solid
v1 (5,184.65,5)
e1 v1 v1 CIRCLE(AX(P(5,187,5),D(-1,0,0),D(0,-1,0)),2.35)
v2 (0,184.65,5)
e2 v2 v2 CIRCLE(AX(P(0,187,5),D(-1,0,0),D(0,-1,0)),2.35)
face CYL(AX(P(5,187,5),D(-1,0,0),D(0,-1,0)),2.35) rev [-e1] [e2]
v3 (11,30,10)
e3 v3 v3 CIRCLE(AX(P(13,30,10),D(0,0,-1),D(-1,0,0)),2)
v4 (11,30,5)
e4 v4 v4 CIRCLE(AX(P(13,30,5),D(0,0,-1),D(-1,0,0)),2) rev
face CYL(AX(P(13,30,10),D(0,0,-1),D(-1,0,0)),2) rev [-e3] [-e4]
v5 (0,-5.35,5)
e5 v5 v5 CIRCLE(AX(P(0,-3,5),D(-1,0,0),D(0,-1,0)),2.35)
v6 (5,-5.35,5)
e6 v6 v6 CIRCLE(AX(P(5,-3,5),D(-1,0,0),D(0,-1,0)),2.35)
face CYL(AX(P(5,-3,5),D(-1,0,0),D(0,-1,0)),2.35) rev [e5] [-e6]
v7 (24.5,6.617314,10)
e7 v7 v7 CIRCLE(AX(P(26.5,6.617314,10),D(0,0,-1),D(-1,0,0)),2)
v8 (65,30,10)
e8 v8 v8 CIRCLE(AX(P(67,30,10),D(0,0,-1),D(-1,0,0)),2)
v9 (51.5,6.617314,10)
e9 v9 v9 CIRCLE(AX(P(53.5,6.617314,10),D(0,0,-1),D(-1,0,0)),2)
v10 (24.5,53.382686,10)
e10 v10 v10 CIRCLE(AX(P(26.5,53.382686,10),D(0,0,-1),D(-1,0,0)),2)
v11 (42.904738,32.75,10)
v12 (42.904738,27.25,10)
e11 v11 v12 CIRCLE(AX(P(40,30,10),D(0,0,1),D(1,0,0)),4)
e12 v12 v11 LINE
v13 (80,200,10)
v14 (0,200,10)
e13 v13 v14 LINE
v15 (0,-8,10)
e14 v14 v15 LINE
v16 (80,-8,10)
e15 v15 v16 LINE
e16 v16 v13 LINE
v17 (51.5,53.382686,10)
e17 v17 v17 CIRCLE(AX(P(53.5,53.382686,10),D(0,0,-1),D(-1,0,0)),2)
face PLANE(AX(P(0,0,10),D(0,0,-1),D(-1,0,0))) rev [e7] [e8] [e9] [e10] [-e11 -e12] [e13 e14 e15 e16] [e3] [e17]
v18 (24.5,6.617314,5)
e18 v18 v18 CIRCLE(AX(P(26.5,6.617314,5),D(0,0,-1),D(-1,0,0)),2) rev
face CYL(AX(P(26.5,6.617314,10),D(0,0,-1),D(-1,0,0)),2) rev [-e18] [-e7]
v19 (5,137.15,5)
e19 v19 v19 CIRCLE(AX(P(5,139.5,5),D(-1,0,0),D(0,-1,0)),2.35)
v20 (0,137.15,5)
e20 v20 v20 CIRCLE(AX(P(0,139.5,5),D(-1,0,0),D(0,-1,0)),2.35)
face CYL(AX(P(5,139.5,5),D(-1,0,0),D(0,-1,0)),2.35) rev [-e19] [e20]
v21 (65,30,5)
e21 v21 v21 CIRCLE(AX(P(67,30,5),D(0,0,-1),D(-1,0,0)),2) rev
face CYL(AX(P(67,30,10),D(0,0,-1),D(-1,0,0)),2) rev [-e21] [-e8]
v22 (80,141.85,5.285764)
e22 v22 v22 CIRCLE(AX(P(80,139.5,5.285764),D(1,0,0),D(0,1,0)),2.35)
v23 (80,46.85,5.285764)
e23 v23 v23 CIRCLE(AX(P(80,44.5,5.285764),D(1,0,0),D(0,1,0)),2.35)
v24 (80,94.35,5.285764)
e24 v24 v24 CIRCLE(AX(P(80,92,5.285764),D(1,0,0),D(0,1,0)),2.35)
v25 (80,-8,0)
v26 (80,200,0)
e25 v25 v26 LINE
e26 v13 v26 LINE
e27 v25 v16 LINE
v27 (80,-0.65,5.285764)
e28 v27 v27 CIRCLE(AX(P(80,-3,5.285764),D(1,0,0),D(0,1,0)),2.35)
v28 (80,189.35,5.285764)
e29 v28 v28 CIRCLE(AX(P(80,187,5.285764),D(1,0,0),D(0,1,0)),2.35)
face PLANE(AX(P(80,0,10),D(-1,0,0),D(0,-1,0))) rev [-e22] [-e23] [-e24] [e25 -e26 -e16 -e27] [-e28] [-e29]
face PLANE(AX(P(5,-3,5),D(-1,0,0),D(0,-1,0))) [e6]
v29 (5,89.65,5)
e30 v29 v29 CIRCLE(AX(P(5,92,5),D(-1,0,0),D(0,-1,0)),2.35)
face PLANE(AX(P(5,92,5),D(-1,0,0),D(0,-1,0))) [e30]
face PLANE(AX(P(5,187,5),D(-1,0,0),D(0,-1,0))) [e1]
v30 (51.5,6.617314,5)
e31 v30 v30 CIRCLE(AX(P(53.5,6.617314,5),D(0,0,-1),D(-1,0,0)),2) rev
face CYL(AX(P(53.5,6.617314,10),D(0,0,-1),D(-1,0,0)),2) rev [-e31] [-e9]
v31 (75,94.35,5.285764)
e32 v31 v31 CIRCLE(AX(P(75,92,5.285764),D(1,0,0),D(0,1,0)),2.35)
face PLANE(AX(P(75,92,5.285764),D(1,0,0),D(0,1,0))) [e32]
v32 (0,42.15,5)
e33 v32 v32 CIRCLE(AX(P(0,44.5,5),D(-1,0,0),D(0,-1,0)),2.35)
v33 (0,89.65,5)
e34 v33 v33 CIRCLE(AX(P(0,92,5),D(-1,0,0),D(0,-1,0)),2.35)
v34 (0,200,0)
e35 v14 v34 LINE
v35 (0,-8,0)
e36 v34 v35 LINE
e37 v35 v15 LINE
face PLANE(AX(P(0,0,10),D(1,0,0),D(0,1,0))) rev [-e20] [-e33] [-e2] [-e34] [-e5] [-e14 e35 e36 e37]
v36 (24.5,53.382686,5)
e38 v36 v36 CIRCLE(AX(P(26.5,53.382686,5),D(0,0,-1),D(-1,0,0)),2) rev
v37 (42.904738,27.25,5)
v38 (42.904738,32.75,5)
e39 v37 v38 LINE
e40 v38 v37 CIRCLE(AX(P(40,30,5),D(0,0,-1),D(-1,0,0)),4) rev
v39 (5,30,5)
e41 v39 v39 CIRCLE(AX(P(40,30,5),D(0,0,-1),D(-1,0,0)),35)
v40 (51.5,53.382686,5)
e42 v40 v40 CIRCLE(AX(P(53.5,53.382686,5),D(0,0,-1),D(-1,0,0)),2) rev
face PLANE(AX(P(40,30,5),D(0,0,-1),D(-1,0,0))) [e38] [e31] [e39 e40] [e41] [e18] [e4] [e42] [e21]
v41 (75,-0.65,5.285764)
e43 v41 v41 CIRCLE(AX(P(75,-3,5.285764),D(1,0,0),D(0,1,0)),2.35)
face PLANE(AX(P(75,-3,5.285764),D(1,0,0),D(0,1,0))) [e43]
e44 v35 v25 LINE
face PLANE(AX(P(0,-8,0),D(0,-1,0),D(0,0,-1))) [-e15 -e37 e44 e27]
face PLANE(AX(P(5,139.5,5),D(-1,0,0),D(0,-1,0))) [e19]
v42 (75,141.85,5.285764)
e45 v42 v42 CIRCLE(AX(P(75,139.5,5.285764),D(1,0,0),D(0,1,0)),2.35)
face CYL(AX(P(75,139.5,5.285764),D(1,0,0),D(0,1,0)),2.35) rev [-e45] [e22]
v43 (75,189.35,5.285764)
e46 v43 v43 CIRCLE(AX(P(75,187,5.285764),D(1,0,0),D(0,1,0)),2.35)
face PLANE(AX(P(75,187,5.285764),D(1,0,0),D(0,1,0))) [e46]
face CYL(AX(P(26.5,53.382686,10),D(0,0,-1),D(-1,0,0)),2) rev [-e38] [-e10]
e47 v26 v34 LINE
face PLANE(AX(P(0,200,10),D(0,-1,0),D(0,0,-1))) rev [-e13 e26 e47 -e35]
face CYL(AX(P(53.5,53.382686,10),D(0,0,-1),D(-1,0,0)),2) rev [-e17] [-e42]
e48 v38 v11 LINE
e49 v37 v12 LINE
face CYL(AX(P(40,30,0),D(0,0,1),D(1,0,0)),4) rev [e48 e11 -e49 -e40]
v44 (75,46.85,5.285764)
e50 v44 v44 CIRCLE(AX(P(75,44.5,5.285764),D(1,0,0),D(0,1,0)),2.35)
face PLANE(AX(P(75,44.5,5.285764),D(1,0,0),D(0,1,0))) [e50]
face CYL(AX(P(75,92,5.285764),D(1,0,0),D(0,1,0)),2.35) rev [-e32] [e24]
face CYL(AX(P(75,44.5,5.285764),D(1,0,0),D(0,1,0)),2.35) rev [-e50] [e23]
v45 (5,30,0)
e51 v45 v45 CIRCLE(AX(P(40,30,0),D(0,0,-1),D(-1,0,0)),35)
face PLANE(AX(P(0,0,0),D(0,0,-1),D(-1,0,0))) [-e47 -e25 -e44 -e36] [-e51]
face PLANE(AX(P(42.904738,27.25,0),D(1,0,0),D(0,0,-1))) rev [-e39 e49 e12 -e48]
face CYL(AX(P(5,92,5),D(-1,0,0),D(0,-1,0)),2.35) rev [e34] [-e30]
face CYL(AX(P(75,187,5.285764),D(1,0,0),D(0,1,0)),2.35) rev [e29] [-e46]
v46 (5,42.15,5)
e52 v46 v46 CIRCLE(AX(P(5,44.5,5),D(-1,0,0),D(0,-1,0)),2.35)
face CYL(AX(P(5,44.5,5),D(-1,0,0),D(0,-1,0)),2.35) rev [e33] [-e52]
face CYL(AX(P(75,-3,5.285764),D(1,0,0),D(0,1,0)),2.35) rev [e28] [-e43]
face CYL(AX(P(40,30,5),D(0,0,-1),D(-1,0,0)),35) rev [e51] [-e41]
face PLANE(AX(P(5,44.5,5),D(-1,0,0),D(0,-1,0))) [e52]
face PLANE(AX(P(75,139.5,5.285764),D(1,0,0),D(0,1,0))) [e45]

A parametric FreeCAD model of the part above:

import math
import FreeCAD as App
import Part
import Sketcher


def add_polygon(sketch, points):
    """Adds a closed chain of lines whose ends are joined by coincident constraints."""
    first, n = sketch.GeometryCount, len(points)
    for a, b in zip(points, points[1:] + points[:1]):
        sketch.addGeometry(Part.LineSegment(App.Vector(*a, 0), App.Vector(*b, 0)), False)
    for i in range(n):
        sketch.addConstraint(Sketcher.Constraint("Coincident", first + i, 2, first + (i + 1) % n, 1))

doc = App.newDocument("Part")
body = doc.addObject("PartDesign::Body", "Body")

# Sketch on XY plane
sketch1 = body.newObject("Sketcher::SketchObject", "Sketch")
sketch1.AttachmentSupport = (doc.getObject("XY_Plane"), [""])
sketch1.MapMode = "FlatFace"
add_polygon(sketch1, [(0, 200), (0, 0), (80, 0), (80, 200)])  # lines 0-3
sketch1.addConstraint([
    Sketcher.Constraint("Vertical", 0),
    Sketcher.Constraint("Horizontal", 1),
    Sketcher.Constraint("Vertical", 2),
    Sketcher.Constraint("Horizontal", 3),
    Sketcher.Constraint("Coincident", 0, 2, -1, 1),
    Sketcher.Constraint("DistanceX", 1, 1, 1, 2, 80.0),
    Sketcher.Constraint("DistanceY", 0, 2, 0, 1, 200.0),
])
pad1 = body.newObject("PartDesign::Pad", "Pad")
pad1.Profile = sketch1
pad1.Length = 10

# Sketch on XY plane
sketch2 = body.newObject("Sketcher::SketchObject", "Sketch001")
sketch2.AttachmentSupport = (doc.getObject("XY_Plane"), [""])
sketch2.MapMode = "FlatFace"
sketch2.AttachmentOffset = App.Placement(App.Vector(0, 0, 10), App.Rotation())
sketch2.addGeometry([
    Part.LineSegment(App.Vector(42.9, 27.2, 0), App.Vector(42.9, 32.8, 0)),
    Part.ArcOfCircle(Part.Circle(App.Vector(40, 30, 0), App.Vector(0, 0, 1), 4), math.radians(43), math.radians(317)),
], False)
sketch2.addConstraint([
    Sketcher.Constraint("Coincident", 0, 1, 1, 2),
    Sketcher.Constraint("Coincident", 1, 1, 0, 2),
    Sketcher.Constraint("Vertical", 0),
    Sketcher.Constraint("Radius", 1, 4.0),
    Sketcher.Constraint("DistanceY", 0, 1, 0, 2, 5.5),
    Sketcher.Constraint("DistanceX", -1, 1, 1, 3, 40.0),
    Sketcher.Constraint("DistanceY", -1, 1, 1, 3, 30.0),
])
pocket1 = body.newObject("PartDesign::Pocket", "Pocket")
pocket1.Profile = sketch2
pocket1.Length = 10

# Sketch on XY plane
sketch3 = body.newObject("Sketcher::SketchObject", "Sketch002")
sketch3.AttachmentSupport = (doc.getObject("XY_Plane"), [""])
sketch3.MapMode = "FlatFace"
sketch3.addGeometry([
    Part.Circle(App.Vector(13, 30, 0), App.Vector(0, 0, 1), 2),  # 0
    Part.Circle(App.Vector(26.5, 6.6, 0), App.Vector(0, 0, 1), 2),  # 1
    Part.Circle(App.Vector(53.5, 6.6, 0), App.Vector(0, 0, 1), 2),  # 2
    Part.Circle(App.Vector(67, 30, 0), App.Vector(0, 0, 1), 2),  # 3
    Part.Circle(App.Vector(53.5, 53.4, 0), App.Vector(0, 0, 1), 2),  # 4
    Part.Circle(App.Vector(26.5, 53.4, 0), App.Vector(0, 0, 1), 2),  # 5
], False)
sketch3.addConstraint([
    Sketcher.Constraint("Equal", 0, 1),
    Sketcher.Constraint("Equal", 1, 2),
    Sketcher.Constraint("Equal", 2, 3),
    Sketcher.Constraint("Equal", 3, 4),
    Sketcher.Constraint("Equal", 4, 5),
    Sketcher.Constraint("Horizontal", 1, 3, 2, 3),
    Sketcher.Constraint("Horizontal", 0, 3, 3, 3),
    Sketcher.Constraint("Horizontal", 4, 3, 5, 3),
    Sketcher.Constraint("Vertical", 2, 3, 4, 3),
    Sketcher.Constraint("Vertical", 1, 3, 5, 3),
    Sketcher.Constraint("Diameter", 0, 4.0),
    Sketcher.Constraint("DistanceX", -1, 1, 0, 3, 13.0),
    Sketcher.Constraint("DistanceY", -1, 1, 0, 3, 30.0),
    Sketcher.Constraint("DistanceX", -1, 1, 3, 3, 67.0),
    Sketcher.Constraint("DistanceX", 1, 3, 2, 3, 27.0),
    Sketcher.Constraint("DistanceX", -1, 1, 1, 3, 26.5),
    Sketcher.Constraint("DistanceY", 2, 3, 4, 3, 46.765372),
    Sketcher.Constraint("DistanceY", -1, 1, 1, 3, 6.617314),
])
pocket2 = body.newObject("PartDesign::Pocket", "Pocket001")
pocket2.Profile = sketch3
pocket2.Type = "ThroughAll"
pocket2.Reversed = True

# Sketch on XY plane
sketch4 = body.newObject("Sketcher::SketchObject", "Sketch003")
sketch4.AttachmentSupport = (doc.getObject("XY_Plane"), [""])
sketch4.MapMode = "FlatFace"
sketch4.addGeometry(Part.Circle(App.Vector(40, 30, 0), App.Vector(0, 0, 1), 35), False)
sketch4.addConstraint([
    Sketcher.Constraint("Diameter", 0, 70.0),
    Sketcher.Constraint("DistanceX", -1, 1, 0, 3, 40.0),
    Sketcher.Constraint("DistanceY", -1, 1, 0, 3, 30.0),
])
pocket3 = body.newObject("PartDesign::Pocket", "Pocket002")
pocket3.Profile = sketch4
pocket3.Length = 5
pocket3.Reversed = True

# Sketch on XY plane
sketch5 = body.newObject("Sketcher::SketchObject", "Sketch004")
sketch5.AttachmentSupport = (doc.getObject("XY_Plane"), [""])
sketch5.MapMode = "FlatFace"
sketch5.AttachmentOffset = App.Placement(App.Vector(0, 0, 10), App.Rotation())
add_polygon(sketch5, [(0, 0), (0, -8), (80, -8), (80, 0)])  # lines 0-3
sketch5.addConstraint([
    Sketcher.Constraint("Vertical", 0),
    Sketcher.Constraint("Horizontal", 1),
    Sketcher.Constraint("Vertical", 2),
    Sketcher.Constraint("Horizontal", 3),
    Sketcher.Constraint("Coincident", 3, 2, -1, 1),
    Sketcher.Constraint("DistanceX", 1, 1, 1, 2, 80.0),
    Sketcher.Constraint("DistanceY", 0, 2, 0, 1, 8.0),
])
pad2 = body.newObject("PartDesign::Pad", "Pad001")
pad2.Profile = sketch5
pad2.Length = 10
pad2.Reversed = True

# Sketch on XY plane
sketch6 = body.newObject("Sketcher::SketchObject", "Sketch005")
sketch6.AttachmentSupport = (doc.getObject("XY_Plane"), [""])
sketch6.MapMode = "FlatFace"
sketch6.addGeometry(Part.Circle(App.Vector(40, 30, 0), App.Vector(0, 0, 1), 35), False)
sketch6.addConstraint([
    Sketcher.Constraint("Diameter", 0, 70.0),
    Sketcher.Constraint("DistanceX", -1, 1, 0, 3, 40.0),
    Sketcher.Constraint("DistanceY", -1, 1, 0, 3, 30.0),
])
pocket4 = body.newObject("PartDesign::Pocket", "Pocket003")
pocket4.Profile = sketch6
pocket4.Length = 5
pocket4.Reversed = True

# Sketch on YZ plane
sketch7 = body.newObject("Sketcher::SketchObject", "Sketch006")
sketch7.AttachmentSupport = (doc.getObject("YZ_Plane"), [""])
sketch7.MapMode = "FlatFace"
sketch7.addGeometry([
    Part.Circle(App.Vector(187, 5, 0), App.Vector(0, 0, 1), 2.4),  # 0
    Part.Circle(App.Vector(139.5, 5, 0), App.Vector(0, 0, 1), 2.4),  # 1
    Part.Circle(App.Vector(92, 5, 0), App.Vector(0, 0, 1), 2.4),  # 2
    Part.Circle(App.Vector(44.5, 5, 0), App.Vector(0, 0, 1), 2.4),  # 3
    Part.Circle(App.Vector(-3, 5, 0), App.Vector(0, 0, 1), 2.4),  # 4
], False)
sketch7.addConstraint([
    Sketcher.Constraint("Equal", 0, 1),
    Sketcher.Constraint("Equal", 1, 2),
    Sketcher.Constraint("Equal", 2, 3),
    Sketcher.Constraint("Equal", 3, 4),
    Sketcher.Constraint("Horizontal", 0, 3, 1, 3),
    Sketcher.Constraint("Horizontal", 1, 3, 2, 3),
    Sketcher.Constraint("Horizontal", 2, 3, 3, 3),
    Sketcher.Constraint("Horizontal", 3, 3, 4, 3),
    Sketcher.Constraint("Diameter", 0, 4.7),
    Sketcher.Constraint("DistanceX", -1, 1, 0, 3, 187.0),
    Sketcher.Constraint("DistanceY", -1, 1, 0, 3, 5.0),
    Sketcher.Constraint("DistanceX", -1, 1, 2, 3, 92.0),
    Sketcher.Constraint("DistanceX", 4, 3, -1, 1, 3.0),
    Sketcher.Constraint("DistanceX", 3, 3, 1, 3, 95.0),
    Sketcher.Constraint("DistanceX", -1, 1, 1, 3, 139.5),
])
pocket5 = body.newObject("PartDesign::Pocket", "Pocket004")
pocket5.Profile = sketch7
pocket5.Length = 5
pocket5.Reversed = True

# Sketch on YZ plane
sketch8 = body.newObject("Sketcher::SketchObject", "Sketch007")
sketch8.AttachmentSupport = (doc.getObject("YZ_Plane"), [""])
sketch8.MapMode = "FlatFace"
sketch8.AttachmentOffset = App.Placement(App.Vector(0, 0, 80), App.Rotation())
sketch8.addGeometry([
    Part.Circle(App.Vector(187, 5.3, 0), App.Vector(0, 0, 1), 2.4),  # 0
    Part.Circle(App.Vector(139.5, 5.3, 0), App.Vector(0, 0, 1), 2.4),  # 1
    Part.Circle(App.Vector(92, 5.3, 0), App.Vector(0, 0, 1), 2.4),  # 2
    Part.Circle(App.Vector(44.5, 5.3, 0), App.Vector(0, 0, 1), 2.4),  # 3
    Part.Circle(App.Vector(-3, 5.3, 0), App.Vector(0, 0, 1), 2.4),  # 4
], False)
sketch8.addConstraint([
    Sketcher.Constraint("Equal", 0, 1),
    Sketcher.Constraint("Equal", 1, 2),
    Sketcher.Constraint("Equal", 2, 3),
    Sketcher.Constraint("Equal", 3, 4),
    Sketcher.Constraint("Horizontal", 0, 3, 1, 3),
    Sketcher.Constraint("Horizontal", 1, 3, 2, 3),
    Sketcher.Constraint("Horizontal", 2, 3, 3, 3),
    Sketcher.Constraint("Horizontal", 3, 3, 4, 3),
    Sketcher.Constraint("Diameter", 0, 4.7),
    Sketcher.Constraint("DistanceX", -1, 1, 0, 3, 187.0),
    Sketcher.Constraint("DistanceX", -1, 1, 2, 3, 92.0),
    Sketcher.Constraint("DistanceX", 4, 3, -1, 1, 3.0),
    Sketcher.Constraint("DistanceX", 3, 3, 1, 3, 95.0),
    Sketcher.Constraint("DistanceX", -1, 1, 1, 3, 139.5),
    Sketcher.Constraint("DistanceY", -1, 1, 0, 3, 5.285764),
])
pocket6 = body.newObject("PartDesign::Pocket", "Pocket005")
pocket6.Profile = sketch8
pocket6.Length = 5

doc.recompute()
